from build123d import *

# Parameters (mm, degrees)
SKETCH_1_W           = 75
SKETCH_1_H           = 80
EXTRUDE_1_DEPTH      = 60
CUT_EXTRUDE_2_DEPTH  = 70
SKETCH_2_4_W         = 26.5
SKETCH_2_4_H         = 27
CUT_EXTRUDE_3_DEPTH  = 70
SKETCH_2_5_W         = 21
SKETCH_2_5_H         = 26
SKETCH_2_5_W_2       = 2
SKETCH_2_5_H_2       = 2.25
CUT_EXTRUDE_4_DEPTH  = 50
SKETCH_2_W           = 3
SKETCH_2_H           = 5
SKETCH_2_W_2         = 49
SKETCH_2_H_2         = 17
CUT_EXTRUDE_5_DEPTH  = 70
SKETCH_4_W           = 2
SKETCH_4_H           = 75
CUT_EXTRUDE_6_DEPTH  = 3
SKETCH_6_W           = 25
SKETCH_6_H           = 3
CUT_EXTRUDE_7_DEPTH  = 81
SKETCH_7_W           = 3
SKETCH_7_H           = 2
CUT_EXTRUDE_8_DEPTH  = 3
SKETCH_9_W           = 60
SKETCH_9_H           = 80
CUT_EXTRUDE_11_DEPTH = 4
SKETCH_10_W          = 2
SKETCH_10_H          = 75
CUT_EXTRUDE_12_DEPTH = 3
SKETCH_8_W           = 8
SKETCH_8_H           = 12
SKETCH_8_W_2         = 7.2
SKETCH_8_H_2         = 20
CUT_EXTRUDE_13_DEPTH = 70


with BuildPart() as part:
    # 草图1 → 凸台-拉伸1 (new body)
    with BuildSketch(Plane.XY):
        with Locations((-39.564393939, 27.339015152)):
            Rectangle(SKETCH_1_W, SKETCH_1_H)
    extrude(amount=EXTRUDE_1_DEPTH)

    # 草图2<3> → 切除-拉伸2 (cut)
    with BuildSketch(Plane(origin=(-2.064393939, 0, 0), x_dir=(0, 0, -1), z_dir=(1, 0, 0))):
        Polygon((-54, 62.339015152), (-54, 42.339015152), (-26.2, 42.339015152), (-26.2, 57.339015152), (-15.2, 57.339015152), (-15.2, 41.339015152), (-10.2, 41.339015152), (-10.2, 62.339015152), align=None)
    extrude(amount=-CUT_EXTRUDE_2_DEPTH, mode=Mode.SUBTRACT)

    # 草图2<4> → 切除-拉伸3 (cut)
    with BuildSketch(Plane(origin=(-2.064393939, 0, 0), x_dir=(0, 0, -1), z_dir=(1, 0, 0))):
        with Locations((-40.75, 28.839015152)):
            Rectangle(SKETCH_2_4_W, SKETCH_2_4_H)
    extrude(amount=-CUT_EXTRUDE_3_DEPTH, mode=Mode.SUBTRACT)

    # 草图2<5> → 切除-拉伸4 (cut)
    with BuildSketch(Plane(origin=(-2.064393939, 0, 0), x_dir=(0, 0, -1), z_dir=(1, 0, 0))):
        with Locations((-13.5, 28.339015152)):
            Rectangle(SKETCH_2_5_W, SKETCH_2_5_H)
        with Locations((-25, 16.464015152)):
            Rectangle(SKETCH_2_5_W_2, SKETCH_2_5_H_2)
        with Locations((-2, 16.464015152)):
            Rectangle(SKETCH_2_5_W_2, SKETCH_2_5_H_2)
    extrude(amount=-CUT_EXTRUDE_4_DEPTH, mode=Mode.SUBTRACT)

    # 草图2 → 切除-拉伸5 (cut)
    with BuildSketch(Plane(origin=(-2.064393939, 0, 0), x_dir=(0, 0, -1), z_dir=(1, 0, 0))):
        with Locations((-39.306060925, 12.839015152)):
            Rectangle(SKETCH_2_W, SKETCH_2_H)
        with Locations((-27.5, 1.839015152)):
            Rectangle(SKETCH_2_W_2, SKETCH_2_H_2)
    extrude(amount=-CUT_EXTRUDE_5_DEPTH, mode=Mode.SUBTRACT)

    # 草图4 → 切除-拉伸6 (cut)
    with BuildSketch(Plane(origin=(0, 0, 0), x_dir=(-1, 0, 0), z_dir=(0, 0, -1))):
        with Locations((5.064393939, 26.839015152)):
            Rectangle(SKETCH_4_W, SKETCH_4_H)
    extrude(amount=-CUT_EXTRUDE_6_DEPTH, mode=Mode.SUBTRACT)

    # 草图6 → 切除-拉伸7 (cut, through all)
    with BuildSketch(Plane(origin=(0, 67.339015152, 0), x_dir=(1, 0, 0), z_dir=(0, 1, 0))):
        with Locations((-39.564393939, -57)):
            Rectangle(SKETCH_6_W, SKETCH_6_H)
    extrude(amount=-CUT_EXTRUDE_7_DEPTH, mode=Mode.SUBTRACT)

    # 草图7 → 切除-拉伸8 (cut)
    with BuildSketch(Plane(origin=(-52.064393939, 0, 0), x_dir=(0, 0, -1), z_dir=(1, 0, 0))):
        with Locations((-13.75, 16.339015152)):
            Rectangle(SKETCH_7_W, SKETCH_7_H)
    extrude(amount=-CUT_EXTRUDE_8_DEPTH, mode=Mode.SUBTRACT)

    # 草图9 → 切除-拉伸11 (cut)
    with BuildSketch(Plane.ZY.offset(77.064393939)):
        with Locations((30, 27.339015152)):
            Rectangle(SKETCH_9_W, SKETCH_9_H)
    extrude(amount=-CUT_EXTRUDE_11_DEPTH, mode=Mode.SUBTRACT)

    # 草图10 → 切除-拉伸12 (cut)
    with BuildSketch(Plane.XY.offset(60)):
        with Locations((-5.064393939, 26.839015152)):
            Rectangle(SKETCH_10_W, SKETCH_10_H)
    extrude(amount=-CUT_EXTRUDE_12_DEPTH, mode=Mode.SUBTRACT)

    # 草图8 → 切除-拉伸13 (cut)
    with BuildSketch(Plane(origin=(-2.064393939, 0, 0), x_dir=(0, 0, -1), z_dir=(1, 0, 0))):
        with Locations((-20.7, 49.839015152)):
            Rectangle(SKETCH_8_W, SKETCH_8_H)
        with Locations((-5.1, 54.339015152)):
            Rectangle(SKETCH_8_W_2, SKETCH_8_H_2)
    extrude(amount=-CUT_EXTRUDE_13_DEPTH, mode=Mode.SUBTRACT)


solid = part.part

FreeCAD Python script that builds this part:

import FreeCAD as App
import Part
import Sketcher
from FreeCAD import Vector

doc = App.newDocument("Part")
body = doc.addObject("PartDesign::Body", "Body")

# Sketch on XY plane
sketch1 = doc.addObject("Sketcher::SketchObject", "Sketch")
body.addObject(sketch1)
sketch1.AttachmentSupport = (doc.XY_Plane, [""])
sketch1.MapMode = "FlatFace"
sketch1.addGeometry([
    Part.LineSegment(Vector(-77, 67, 0), Vector(-77, -13, 0)),
    Part.LineSegment(Vector(-77, -13, 0), Vector(-2, -13, 0)),
    Part.LineSegment(Vector(-2, -13, 0), Vector(-2, 67, 0)),
    Part.LineSegment(Vector(-2, 67, 0), Vector(-77, 67, 0)),
], False)
sketch1.addConstraint([
    Sketcher.Constraint("Coincident", 0, 2, 1, 1),
    Sketcher.Constraint("Coincident", 1, 2, 2, 1),
    Sketcher.Constraint("Coincident", 2, 2, 3, 1),
    Sketcher.Constraint("Coincident", 3, 2, 0, 1),
    Sketcher.Constraint("Vertical", 0),
    Sketcher.Constraint("Horizontal", 1),
    Sketcher.Constraint("Vertical", 2),
    Sketcher.Constraint("Horizontal", 3),
    Sketcher.Constraint("DistanceX", 1, 1, 1, 2, 75.0),
    Sketcher.Constraint("DistanceY", 0, 2, 0, 1, 80.0),
    Sketcher.Constraint("DistanceX", 0, 2, -1, 1, 77.064394),
    Sketcher.Constraint("DistanceY", 0, 2, -1, 1, 12.660985),
])
pad1 = doc.addObject("PartDesign::Pad", "Pad")
body.addObject(pad1)
pad1.Profile = sketch1
pad1.Length = 60

# Sketch on YZ plane
sketch2 = doc.addObject("Sketcher::SketchObject", "Sketch001")
body.addObject(sketch2)
sketch2.AttachmentSupport = (doc.YZ_Plane, [""])
sketch2.MapMode = "FlatFace"
sketch2.AttachmentOffset = App.Placement(Vector(0, 0, -2.064394), App.Rotation())
sketch2.addGeometry([
    Part.LineSegment(Vector(62, 54, 0), Vector(42, 54, 0)),  # 0
    Part.LineSegment(Vector(42, 54, 0), Vector(42, 26, 0)),  # 1
    Part.LineSegment(Vector(42, 26, 0), Vector(57, 26, 0)),  # 2
    Part.LineSegment(Vector(57, 26, 0), Vector(57, 15, 0)),  # 3
    Part.LineSegment(Vector(57, 15, 0), Vector(41, 15, 0)),  # 4
    Part.LineSegment(Vector(41, 15, 0), Vector(41, 10, 0)),  # 5
    Part.LineSegment(Vector(41, 10, 0), Vector(62, 10, 0)),  # 6
    Part.LineSegment(Vector(62, 10, 0), Vector(62, 54, 0)),  # 7
], False)
sketch2.addConstraint([
    Sketcher.Constraint("Coincident", 0, 2, 1, 1),
    Sketcher.Constraint("Coincident", 1, 2, 2, 1),
    Sketcher.Constraint("Coincident", 2, 2, 3, 1),
    Sketcher.Constraint("Coincident", 3, 2, 4, 1),
    Sketcher.Constraint("Coincident", 4, 2, 5, 1),
    Sketcher.Constraint("Coincident", 5, 2, 6, 1),
    Sketcher.Constraint("Coincident", 6, 2, 7, 1),
    Sketcher.Constraint("Coincident", 7, 2, 0, 1),
    Sketcher.Constraint("Horizontal", 0),
    Sketcher.Constraint("Vertical", 1),
    Sketcher.Constraint("Horizontal", 2),
    Sketcher.Constraint("Vertical", 3),
    Sketcher.Constraint("Horizontal", 4),
    Sketcher.Constraint("Vertical", 5),
    Sketcher.Constraint("Horizontal", 6),
    Sketcher.Constraint("Vertical", 7),
    Sketcher.Constraint("DistanceX", 0, 2, 0, 1, 20.0),
    Sketcher.Constraint("DistanceX", 2, 1, 2, 2, 15.0),
    Sketcher.Constraint("DistanceX", 4, 2, 4, 1, 16.0),
    Sketcher.Constraint("DistanceY", 3, 2, 3, 1, 11.0),
    Sketcher.Constraint("DistanceY", 5, 2, 5, 1, 5.0),
    Sketcher.Constraint("DistanceY", 1, 2, 1, 1, 27.8),
    Sketcher.Constraint("DistanceY", -1, 1, 0, 2, 54.0),
    Sketcher.Constraint("DistanceX", -1, 1, 0, 2, 42.339015),
])
pocket1 = doc.addObject("PartDesign::Pocket", "Pocket")
body.addObject(pocket1)
pocket1.Profile = sketch2
pocket1.Length = 70

# Sketch on YZ plane
sketch3 = doc.addObject("Sketcher::SketchObject", "Sketch002")
body.addObject(sketch3)
sketch3.AttachmentSupport = (doc.YZ_Plane, [""])
sketch3.MapMode = "FlatFace"
sketch3.AttachmentOffset = App.Placement(Vector(0, 0, -2.064394), App.Rotation())
sketch3.addGeometry([
    Part.LineSegment(Vector(42, 54, 0), Vector(15, 54, 0)),
    Part.LineSegment(Vector(15, 54, 0), Vector(15, 28, 0)),
    Part.LineSegment(Vector(15, 28, 0), Vector(42, 28, 0)),
    Part.LineSegment(Vector(42, 28, 0), Vector(42, 54, 0)),
], False)
sketch3.addConstraint([
    Sketcher.Constraint("Coincident", 0, 2, 1, 1),
    Sketcher.Constraint("Coincident", 1, 2, 2, 1),
    Sketcher.Constraint("Coincident", 2, 2, 3, 1),
    Sketcher.Constraint("Coincident", 3, 2, 0, 1),
    Sketcher.Constraint("Horizontal", 0),
    Sketcher.Constraint("Vertical", 1),
    Sketcher.Constraint("Horizontal", 2),
    Sketcher.Constraint("Vertical", 3),
    Sketcher.Constraint("DistanceX", 0, 2, 0, 1, 27.0),
    Sketcher.Constraint("DistanceY", 1, 2, 1, 1, 26.5),
    Sketcher.Constraint("DistanceY", -1, 1, 0, 2, 54.0),
    Sketcher.Constraint("DistanceX", -1, 1, 0, 2, 15.339015),
])
pocket2 = doc.addObject("PartDesign::Pocket", "Pocket001")
body.addObject(pocket2)
pocket2.Profile = sketch3
pocket2.Length = 70

# Sketch on YZ plane
sketch4 = doc.addObject("Sketcher::SketchObject", "Sketch003")
body.addObject(sketch4)
sketch4.AttachmentSupport = (doc.YZ_Plane, [""])
sketch4.MapMode = "FlatFace"
sketch4.AttachmentOffset = App.Placement(Vector(0, 0, -2.064394), App.Rotation())
sketch4.addGeometry([
    Part.LineSegment(Vector(41.3, 24, 0), Vector(17.6, 24, 0)),  # 0
    Part.LineSegment(Vector(17.6, 24, 0), Vector(17.6, 26, 0)),  # 1
    Part.LineSegment(Vector(17.6, 26, 0), Vector(15.3, 26, 0)),  # 2
    Part.LineSegment(Vector(15.3, 26, 0), Vector(15.3, 1, 0)),  # 3
    Part.LineSegment(Vector(15.3, 1, 0), Vector(17.6, 1, 0)),  # 4
    Part.LineSegment(Vector(17.6, 1, 0), Vector(17.6, 3, 0)),  # 5
    Part.LineSegment(Vector(17.6, 3, 0), Vector(41.3, 3, 0)),  # 6
    Part.LineSegment(Vector(41.3, 3, 0), Vector(41.3, 24, 0)),  # 7
], False)
sketch4.addConstraint([
    Sketcher.Constraint("Coincident", 0, 2, 1, 1),
    Sketcher.Constraint("Coincident", 1, 2, 2, 1),
    Sketcher.Constraint("Coincident", 2, 2, 3, 1),
    Sketcher.Constraint("Coincident", 3, 2, 4, 1),
    Sketcher.Constraint("Coincident", 4, 2, 5, 1),
    Sketcher.Constraint("Coincident", 5, 2, 6, 1),
    Sketcher.Constraint("Coincident", 6, 2, 7, 1),
    Sketcher.Constraint("Coincident", 7, 2, 0, 1),
    Sketcher.Constraint("Horizontal", 0),
    Sketcher.Constraint("Vertical", 1),
    Sketcher.Constraint("Horizontal", 2),
    Sketcher.Constraint("Vertical", 3),
    Sketcher.Constraint("Horizontal", 4),
    Sketcher.Constraint("Vertical", 5),
    Sketcher.Constraint("Horizontal", 6),
    Sketcher.Constraint("Vertical", 7),
    Sketcher.Constraint("Vertical", 1, 2, 4, 2),
    Sketcher.Constraint("Equal", 1, 5),
    Sketcher.Constraint("DistanceY", 1, 1, 1, 2, 2.0),
    Sketcher.Constraint("DistanceY", 3, 2, 3, 1, 25.0),
    Sketcher.Constraint("DistanceY", -1, 1, 0, 2, 24.0),
    Sketcher.Constraint("DistanceX", 3, 2, 6, 2, 26.0),
    Sketcher.Constraint("DistanceX", 0, 2, 0, 1, 23.75),
    Sketcher.Constraint("DistanceX", -1, 1, 0, 2, 17.589015),
])
pocket3 = doc.addObject("PartDesign::Pocket", "Pocket002")
body.addObject(pocket3)
pocket3.Profile = sketch4
pocket3.Length = 50

# Sketch on YZ plane
sketch5 = doc.addObject("Sketcher::SketchObject", "Sketch004")
body.addObject(sketch5)
sketch5.AttachmentSupport = (doc.YZ_Plane, [""])
sketch5.MapMode = "FlatFace"
sketch5.AttachmentOffset = App.Placement(Vector(0, 0, -2.064394), App.Rotation())
sketch5.addGeometry([
    Part.LineSegment(Vector(15.3, 40.8, 0), Vector(10.3, 40.8, 0)),  # 0
    Part.LineSegment(Vector(10.3, 40.8, 0), Vector(10.3, 52, 0)),  # 1
    Part.LineSegment(Vector(10.3, 52, 0), Vector(-6.7, 52, 0)),  # 2
    Part.LineSegment(Vector(-6.7, 52, 0), Vector(-6.7, 3, 0)),  # 3
    Part.LineSegment(Vector(-6.7, 3, 0), Vector(10.3, 3, 0)),  # 4
    Part.LineSegment(Vector(10.3, 3, 0), Vector(10.3, 37.8, 0)),  # 5
    Part.LineSegment(Vector(10.3, 37.8, 0), Vector(15.3, 37.8, 0)),  # 6
    Part.LineSegment(Vector(15.3, 37.8, 0), Vector(15.3, 40.8, 0)),  # 7
], False)
sketch5.addConstraint([
    Sketcher.Constraint("Coincident", 0, 2, 1, 1),
    Sketcher.Constraint("Coincident", 1, 2, 2, 1),
    Sketcher.Constraint("Coincident", 2, 2, 3, 1),
    Sketcher.Constraint("Coincident", 3, 2, 4, 1),
    Sketcher.Constraint("Coincident", 4, 2, 5, 1),
    Sketcher.Constraint("Coincident", 5, 2, 6, 1),
    Sketcher.Constraint("Coincident", 6, 2, 7, 1),
    Sketcher.Constraint("Coincident", 7, 2, 0, 1),
    Sketcher.Constraint("Horizontal", 0),
    Sketcher.Constraint("Vertical", 1),
    Sketcher.Constraint("Horizontal", 2),
    Sketcher.Constraint("Vertical", 3),
    Sketcher.Constraint("Horizontal", 4),
    Sketcher.Constraint("Vertical", 5),
    Sketcher.Constraint("Horizontal", 6),
    Sketcher.Constraint("Vertical", 7),
    Sketcher.Constraint("Vertical", 1, 2, 4, 2),
    Sketcher.Constraint("DistanceX", 0, 2, 0, 1, 5.0),
    Sketcher.Constraint("DistanceX", 2, 2, 2, 1, 17.0),
    Sketcher.Constraint("DistanceY", 3, 2, 3, 1, 49.0),
    Sketcher.Constraint("DistanceY", 7, 1, 7, 2, 3.0),
    Sketcher.Constraint("DistanceY", -1, 1, 1, 2, 52.0),
    Sketcher.Constraint("DistanceY", 1, 1, 1, 2, 11.193939),
    Sketcher.Constraint("DistanceX", -1, 1, 0, 2, 10.339015),
])
pocket4 = doc.addObject("PartDesign::Pocket", "Pocket003")
body.addObject(pocket4)
pocket4.Profile = sketch5
pocket4.Length = 70

# Sketch on XY plane
sketch6 = doc.addObject("Sketcher::SketchObject", "Sketch005")
body.addObject(sketch6)
sketch6.AttachmentSupport = (doc.XY_Plane, [""])
sketch6.MapMode = "FlatFace"
sketch6.addGeometry([
    Part.LineSegment(Vector(-4.1, 64.3, 0), Vector(-4.1, -10.7, 0)),
    Part.LineSegment(Vector(-4.1, -10.7, 0), Vector(-6.1, -10.7, 0)),
    Part.LineSegment(Vector(-6.1, -10.7, 0), Vector(-6.1, 64.3, 0)),
    Part.LineSegment(Vector(-6.1, 64.3, 0), Vector(-4.1, 64.3, 0)),
], False)
sketch6.addConstraint([
    Sketcher.Constraint("Coincident", 0, 2, 1, 1),
    Sketcher.Constraint("Coincident", 1, 2, 2, 1),
    Sketcher.Constraint("Coincident", 2, 2, 3, 1),
    Sketcher.Constraint("Coincident", 3, 2, 0, 1),
    Sketcher.Constraint("Vertical", 0),
    Sketcher.Constraint("Horizontal", 1),
    Sketcher.Constraint("Vertical", 2),
    Sketcher.Constraint("Horizontal", 3),
    Sketcher.Constraint("DistanceX", 1, 2, 1, 1, 2.0),
    Sketcher.Constraint("DistanceY", 0, 2, 0, 1, 75.0),
    Sketcher.Constraint("DistanceX", 0, 2, -1, 1, 4.064394),
    Sketcher.Constraint("DistanceY", 0, 2, -1, 1, 10.660985),
])
pocket5 = doc.addObject("PartDesign::Pocket", "Pocket004")
body.addObject(pocket5)
pocket5.Profile = sketch6
pocket5.Length = 3
pocket5.Reversed = True

# Sketch on XZ plane
sketch7 = doc.addObject("Sketcher::SketchObject", "Sketch006")
body.addObject(sketch7)
sketch7.AttachmentSupport = (doc.XZ_Plane, [""])
sketch7.MapMode = "FlatFace"
sketch7.AttachmentOffset = App.Placement(Vector(0, 0, -67.339015), App.Rotation())
sketch7.addGeometry([
    Part.LineSegment(Vector(-52.1, 55.5, 0), Vector(-52.1, 58.5, 0)),
    Part.LineSegment(Vector(-52.1, 58.5, 0), Vector(-27.1, 58.5, 0)),
    Part.LineSegment(Vector(-27.1, 58.5, 0), Vector(-27.1, 55.5, 0)),
    Part.LineSegment(Vector(-27.1, 55.5, 0), Vector(-52.1, 55.5, 0)),
], False)
sketch7.addConstraint([
    Sketcher.Constraint("Coincident", 0, 2, 1, 1),
    Sketcher.Constraint("Coincident", 1, 2, 2, 1),
    Sketcher.Constraint("Coincident", 2, 2, 3, 1),
    Sketcher.Constraint("Coincident", 3, 2, 0, 1),
    Sketcher.Constraint("Vertical", 0),
    Sketcher.Constraint("Horizontal", 1),
    Sketcher.Constraint("Vertical", 2),
    Sketcher.Constraint("Horizontal", 3),
    Sketcher.Constraint("DistanceX", 1, 1, 1, 2, 25.0),
    Sketcher.Constraint("DistanceY", 0, 1, 0, 2, 3.0),
    Sketcher.Constraint("DistanceY", -1, 1, 0, 2, 58.5),
    Sketcher.Constraint("DistanceX", 0, 2, -1, 1, 52.064394),
])
pocket6 = doc.addObject("PartDesign::Pocket", "Pocket005")
body.addObject(pocket6)
pocket6.Profile = sketch7
pocket6.Type = "ThroughAll"
pocket6.Reversed = True

# Sketch on YZ plane
sketch8 = doc.addObject("Sketcher::SketchObject", "Sketch007")
body.addObject(sketch8)
sketch8.AttachmentSupport = (doc.YZ_Plane, [""])
sketch8.MapMode = "FlatFace"
sketch8.AttachmentOffset = App.Placement(Vector(0, 0, -52.064394), App.Rotation())
sketch8.addGeometry([
    Part.LineSegment(Vector(17.3, 15.2, 0), Vector(15.3, 15.2, 0)),
    Part.LineSegment(Vector(15.3, 15.2, 0), Vector(15.3, 12.2, 0)),
    Part.LineSegment(Vector(15.3, 12.2, 0), Vector(17.3, 12.2, 0)),
    Part.LineSegment(Vector(17.3, 12.2, 0), Vector(17.3, 15.2, 0)),
], False)
sketch8.addConstraint([
    Sketcher.Constraint("Coincident", 0, 2, 1, 1),
    Sketcher.Constraint("Coincident", 1, 2, 2, 1),
    Sketcher.Constraint("Coincident", 2, 2, 3, 1),
    Sketcher.Constraint("Coincident", 3, 2, 0, 1),
    Sketcher.Constraint("Horizontal", 0),
    Sketcher.Constraint("Vertical", 1),
    Sketcher.Constraint("Horizontal", 2),
    Sketcher.Constraint("Vertical", 3),
    Sketcher.Constraint("DistanceX", 0, 2, 0, 1, 2.0),
    Sketcher.Constraint("DistanceY", 1, 2, 1, 1, 3.0),
    Sketcher.Constraint("DistanceY", -1, 1, 0, 2, 15.25),
    Sketcher.Constraint("DistanceX", -1, 1, 0, 2, 15.339015),
])
pocket7 = doc.addObject("PartDesign::Pocket", "Pocket006")
body.addObject(pocket7)
pocket7.Profile = sketch8
pocket7.Length = 3

# Sketch on YZ plane
sketch9 = doc.addObject("Sketcher::SketchObject", "Sketch008")
body.addObject(sketch9)
sketch9.AttachmentSupport = (doc.YZ_Plane, [""])
sketch9.MapMode = "FlatFace"
sketch9.AttachmentOffset = App.Placement(Vector(0, 0, -77.064394), App.Rotation())
sketch9.addGeometry([
    Part.LineSegment(Vector(67, 0, 0), Vector(-13, 0, 0)),
    Part.LineSegment(Vector(-13, 0, 0), Vector(-13, 60, 0)),
    Part.LineSegment(Vector(-13, 60, 0), Vector(67, 60, 0)),
    Part.LineSegment(Vector(67, 60, 0), Vector(67, 0, 0)),
], False)
sketch9.addConstraint([
    Sketcher.Constraint("Coincident", 0, 2, 1, 1),
    Sketcher.Constraint("Coincident", 1, 2, 2, 1),
    Sketcher.Constraint("Coincident", 2, 2, 3, 1),
    Sketcher.Constraint("Coincident", 3, 2, 0, 1),
    Sketcher.Constraint("Horizontal", 0),
    Sketcher.Constraint("Vertical", 1),
    Sketcher.Constraint("Horizontal", 2),
    Sketcher.Constraint("Vertical", 3),
    Sketcher.Constraint("PointOnObject", 0, 2, -1),
    Sketcher.Constraint("DistanceX", 0, 2, 0, 1, 80.0),
    Sketcher.Constraint("DistanceY", 1, 1, 1, 2, 60.0),
    Sketcher.Constraint("DistanceX", 0, 2, -1, 1, 12.660985),
])
pocket8 = doc.addObject("PartDesign::Pocket", "Pocket007")
body.addObject(pocket8)
pocket8.Profile = sketch9
pocket8.Length = 4
pocket8.Reversed = True

# Sketch on XY plane
sketch10 = doc.addObject("Sketcher::SketchObject", "Sketch009")
body.addObject(sketch10)
sketch10.AttachmentSupport = (doc.XY_Plane, [""])
sketch10.MapMode = "FlatFace"
sketch10.AttachmentOffset = App.Placement(Vector(0, 0, 60), App.Rotation())
sketch10.addGeometry([
    Part.LineSegment(Vector(-6.1, 64.3, 0), Vector(-6.1, -10.7, 0)),
    Part.LineSegment(Vector(-6.1, -10.7, 0), Vector(-4.1, -10.7, 0)),
    Part.LineSegment(Vector(-4.1, -10.7, 0), Vector(-4.1, 64.3, 0)),
    Part.LineSegment(Vector(-4.1, 64.3, 0), Vector(-6.1, 64.3, 0)),
], False)
sketch10.addConstraint([
    Sketcher.Constraint("Coincident", 0, 2, 1, 1),
    Sketcher.Constraint("Coincident", 1, 2, 2, 1),
    Sketcher.Constraint("Coincident", 2, 2, 3, 1),
    Sketcher.Constraint("Coincident", 3, 2, 0, 1),
    Sketcher.Constraint("Vertical", 0),
    Sketcher.Constraint("Horizontal", 1),
    Sketcher.Constraint("Vertical", 2),
    Sketcher.Constraint("Horizontal", 3),
    Sketcher.Constraint("DistanceX", 1, 1, 1, 2, 2.0),
    Sketcher.Constraint("DistanceY", 0, 2, 0, 1, 75.0),
    Sketcher.Constraint("DistanceX", 0, 2, -1, 1, 6.064394),
    Sketcher.Constraint("DistanceY", 0, 2, -1, 1, 10.660985),
])
pocket9 = doc.addObject("PartDesign::Pocket", "Pocket008")
body.addObject(pocket9)
pocket9.Profile = sketch10
pocket9.Length = 3

# Sketch on YZ plane
sketch11 = doc.addObject("Sketcher::SketchObject", "Sketch010")
body.addObject(sketch11)
sketch11.AttachmentSupport = (doc.YZ_Plane, [""])
sketch11.MapMode = "FlatFace"
sketch11.AttachmentOffset = App.Placement(Vector(0, 0, -2.064394), App.Rotation())
sketch11.addGeometry([
    Part.LineSegment(Vector(56, 25, 0), Vector(44, 25, 0)),  # 0
    Part.LineSegment(Vector(44, 25, 0), Vector(44, 17, 0)),  # 1
    Part.LineSegment(Vector(44, 17, 0), Vector(56, 17, 0)),  # 2
    Part.LineSegment(Vector(56, 17, 0), Vector(56, 25, 0)),  # 3
    Part.LineSegment(Vector(64, 9, 0), Vector(44, 9, 0)),  # 4
    Part.LineSegment(Vector(44, 9, 0), Vector(44, 2, 0)),  # 5
    Part.LineSegment(Vector(44, 2, 0), Vector(64, 2, 0)),  # 6
    Part.LineSegment(Vector(64, 2, 0), Vector(64, 9, 0)),  # 7
], False)
sketch11.addConstraint([
    Sketcher.Constraint("Coincident", 0, 2, 1, 1),
    Sketcher.Constraint("Coincident", 1, 2, 2, 1),
    Sketcher.Constraint("Coincident", 2, 2, 3, 1),
    Sketcher.Constraint("Coincident", 3, 2, 0, 1),
    Sketcher.Constraint("Coincident", 4, 2, 5, 1),
    Sketcher.Constraint("Coincident", 5, 2, 6, 1),
    Sketcher.Constraint("Coincident", 6, 2, 7, 1),
    Sketcher.Constraint("Coincident", 7, 2, 4, 1),
    Sketcher.Constraint("Horizontal", 0),
    Sketcher.Constraint("Vertical", 1),
    Sketcher.Constraint("Horizontal", 2),
    Sketcher.Constraint("Vertical", 3),
    Sketcher.Constraint("Horizontal", 4),
    Sketcher.Constraint("Vertical", 5),
    Sketcher.Constraint("Horizontal", 6),
    Sketcher.Constraint("Vertical", 7),
    Sketcher.Constraint("DistanceX", 0, 2, 0, 1, 12.0),
    Sketcher.Constraint("DistanceX", 4, 2, 4, 1, 20.0),
    Sketcher.Constraint("DistanceY", 1, 2, 1, 1, 8.0),
    Sketcher.Constraint("DistanceY", 5, 2, 5, 1, 7.2),
    Sketcher.Constraint("DistanceY", 4, 2, 1, 2, 8.0),
    Sketcher.Constraint("DistanceY", -1, 1, 0, 2, 24.7),
    Sketcher.Constraint("DistanceX", 1, 2, 4, 2, 0.5),
    Sketcher.Constraint("DistanceX", -1, 1, 0, 2, 43.839015),
])
pocket10 = doc.addObject("PartDesign::Pocket", "Pocket009")
body.addObject(pocket10)
pocket10.Profile = sketch11
pocket10.Length = 70

doc.recompute()
